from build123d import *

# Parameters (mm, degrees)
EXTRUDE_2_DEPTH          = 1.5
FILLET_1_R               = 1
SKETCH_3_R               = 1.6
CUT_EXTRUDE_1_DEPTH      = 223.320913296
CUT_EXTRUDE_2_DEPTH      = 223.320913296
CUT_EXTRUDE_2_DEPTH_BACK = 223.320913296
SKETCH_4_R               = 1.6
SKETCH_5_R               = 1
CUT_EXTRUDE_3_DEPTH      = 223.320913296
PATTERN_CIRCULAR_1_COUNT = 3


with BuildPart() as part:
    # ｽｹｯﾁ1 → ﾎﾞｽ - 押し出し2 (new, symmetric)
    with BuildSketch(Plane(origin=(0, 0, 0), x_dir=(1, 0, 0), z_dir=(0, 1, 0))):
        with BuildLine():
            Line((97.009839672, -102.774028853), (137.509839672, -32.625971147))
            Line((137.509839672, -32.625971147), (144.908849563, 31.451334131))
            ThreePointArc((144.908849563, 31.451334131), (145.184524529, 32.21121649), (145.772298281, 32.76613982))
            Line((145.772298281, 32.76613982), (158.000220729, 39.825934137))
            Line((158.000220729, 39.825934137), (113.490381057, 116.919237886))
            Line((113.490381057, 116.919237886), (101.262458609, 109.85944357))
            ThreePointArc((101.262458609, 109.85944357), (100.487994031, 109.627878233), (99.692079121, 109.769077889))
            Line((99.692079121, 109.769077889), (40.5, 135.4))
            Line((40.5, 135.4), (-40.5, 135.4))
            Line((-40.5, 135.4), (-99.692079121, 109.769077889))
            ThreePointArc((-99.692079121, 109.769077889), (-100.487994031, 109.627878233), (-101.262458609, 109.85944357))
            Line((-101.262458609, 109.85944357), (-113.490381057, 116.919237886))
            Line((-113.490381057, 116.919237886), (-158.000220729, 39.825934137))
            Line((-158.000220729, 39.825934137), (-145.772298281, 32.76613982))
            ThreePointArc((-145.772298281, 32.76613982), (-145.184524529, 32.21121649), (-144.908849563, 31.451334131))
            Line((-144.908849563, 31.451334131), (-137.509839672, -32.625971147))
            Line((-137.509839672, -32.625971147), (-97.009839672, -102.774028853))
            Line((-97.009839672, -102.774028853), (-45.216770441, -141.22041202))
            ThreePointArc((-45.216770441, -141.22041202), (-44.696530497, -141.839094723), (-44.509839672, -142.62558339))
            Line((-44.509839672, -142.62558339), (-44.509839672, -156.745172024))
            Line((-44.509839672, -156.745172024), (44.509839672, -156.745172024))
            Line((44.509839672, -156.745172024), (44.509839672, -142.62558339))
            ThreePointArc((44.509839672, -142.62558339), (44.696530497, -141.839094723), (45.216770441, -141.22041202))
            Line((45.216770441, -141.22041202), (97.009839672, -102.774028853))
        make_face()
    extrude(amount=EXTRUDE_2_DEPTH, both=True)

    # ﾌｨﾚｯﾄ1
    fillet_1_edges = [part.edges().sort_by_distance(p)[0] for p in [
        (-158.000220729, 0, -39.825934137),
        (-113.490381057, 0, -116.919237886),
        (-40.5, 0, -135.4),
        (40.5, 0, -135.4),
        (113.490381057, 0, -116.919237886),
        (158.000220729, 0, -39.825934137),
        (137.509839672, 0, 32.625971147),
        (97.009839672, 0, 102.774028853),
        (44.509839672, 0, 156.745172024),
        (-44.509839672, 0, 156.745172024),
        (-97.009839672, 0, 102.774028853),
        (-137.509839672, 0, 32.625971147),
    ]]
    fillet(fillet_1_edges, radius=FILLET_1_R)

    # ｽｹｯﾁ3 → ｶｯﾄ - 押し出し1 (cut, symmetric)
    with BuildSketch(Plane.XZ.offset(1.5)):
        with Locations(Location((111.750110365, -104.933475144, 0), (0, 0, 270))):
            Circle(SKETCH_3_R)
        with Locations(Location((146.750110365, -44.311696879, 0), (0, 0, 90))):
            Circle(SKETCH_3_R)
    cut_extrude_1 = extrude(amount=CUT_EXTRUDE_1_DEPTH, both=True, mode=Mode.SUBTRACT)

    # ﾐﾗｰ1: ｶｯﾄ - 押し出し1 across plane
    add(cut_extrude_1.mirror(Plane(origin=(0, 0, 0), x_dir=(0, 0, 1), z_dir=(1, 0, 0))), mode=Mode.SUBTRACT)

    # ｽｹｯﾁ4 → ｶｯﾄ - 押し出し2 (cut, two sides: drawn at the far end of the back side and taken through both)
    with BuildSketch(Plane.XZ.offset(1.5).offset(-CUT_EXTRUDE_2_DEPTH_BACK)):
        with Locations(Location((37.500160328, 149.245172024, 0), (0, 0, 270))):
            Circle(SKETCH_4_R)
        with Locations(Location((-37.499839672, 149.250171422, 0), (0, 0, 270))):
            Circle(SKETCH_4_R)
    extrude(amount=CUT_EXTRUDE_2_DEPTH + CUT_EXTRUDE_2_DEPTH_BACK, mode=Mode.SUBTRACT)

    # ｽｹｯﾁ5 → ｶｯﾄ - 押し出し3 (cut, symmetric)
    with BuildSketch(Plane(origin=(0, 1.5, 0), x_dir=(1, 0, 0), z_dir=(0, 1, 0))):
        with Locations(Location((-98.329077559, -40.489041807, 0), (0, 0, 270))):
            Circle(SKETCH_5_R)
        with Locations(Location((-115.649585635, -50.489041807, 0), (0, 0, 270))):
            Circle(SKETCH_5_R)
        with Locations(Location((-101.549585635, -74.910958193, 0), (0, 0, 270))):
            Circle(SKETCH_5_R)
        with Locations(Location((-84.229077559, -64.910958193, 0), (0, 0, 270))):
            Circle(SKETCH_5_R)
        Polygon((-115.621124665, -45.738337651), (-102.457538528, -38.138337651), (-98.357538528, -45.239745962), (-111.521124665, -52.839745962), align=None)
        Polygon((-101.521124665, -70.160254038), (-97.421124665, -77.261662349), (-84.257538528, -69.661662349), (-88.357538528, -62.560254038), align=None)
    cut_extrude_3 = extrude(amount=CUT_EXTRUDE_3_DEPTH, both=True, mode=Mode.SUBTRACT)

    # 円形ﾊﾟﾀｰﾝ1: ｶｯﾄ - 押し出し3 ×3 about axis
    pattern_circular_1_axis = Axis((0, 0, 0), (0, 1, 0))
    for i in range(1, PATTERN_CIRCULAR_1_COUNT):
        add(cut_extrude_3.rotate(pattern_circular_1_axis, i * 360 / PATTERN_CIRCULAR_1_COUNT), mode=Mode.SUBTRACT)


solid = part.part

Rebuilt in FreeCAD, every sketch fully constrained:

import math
import FreeCAD as App
import Part
import Sketcher
Q = App.Units.Quantity


def edges_at(feature, points):
    """Names of the edges that pass closest to the given points."""
    edges = feature.Shape.Edges
    near = lambda p: min(range(len(edges)), key=lambda i: edges[i].distToShape(Part.Vertex(*p))[0])
    return sorted({f"Edge{near(p) + 1}" for p in points})


def add_polygon(sketch, points):
    """Adds a closed chain of lines whose ends are joined by coincident constraints."""
    first, n = sketch.GeometryCount, len(points)
    for a, b in zip(points, points[1:] + points[:1]):
        sketch.addGeometry(Part.LineSegment(App.Vector(*a, 0), App.Vector(*b, 0)), False)
    for i in range(n):
        sketch.addConstraint(Sketcher.Constraint("Coincident", first + i, 2, first + (i + 1) % n, 1))

doc = App.newDocument("Part")
params = doc.addObject("Spreadsheet::Sheet", "Params")
for row, (alias, value) in enumerate([
    ("sketch1_width", "81 mm"),
    ("sketch1_radius", "1.75 mm"),
    ("sketch1_length", "81 mm"),
    ("pad1_length", "3 mm"),
    ("fillet_radius", "1 mm"),
    ("sketch2_diameter", "3.2 mm"),
    ("pocket1_length", "446.641827 mm"),
    ("sketch3_diameter", "3.2 mm"),
    ("sketch4_diameter", "2 mm"),
    ("sketch4_length", "15.2 mm"),
    ("sketch4_length2", "8.2 mm"),
    ("pocket3_length", "446.641827 mm"),
], start=1):
    params.set(f"A{row}", alias)
    params.set(f"B{row}", "=" + value)
    params.setAlias(f"B{row}", alias)

body = doc.addObject("PartDesign::Body", "Body")

# Sketch on XZ plane
sketch1 = body.newObject("Sketcher::SketchObject", "Sketch")
sketch1.AttachmentSupport = (doc.getObject("XZ_Plane"), [""])
sketch1.MapMode = "FlatFace"
sketch1.addGeometry([
    Part.LineSegment(App.Vector(97, 102.8, 0), App.Vector(137.5, 32.6, 0)),  # 0
    Part.LineSegment(App.Vector(137.5, 32.6, 0), App.Vector(144.9, -31.5, 0)),  # 1
    Part.ArcOfCircle(Part.Circle(App.Vector(146.6, -31.3, 0), App.Vector(0, 0, 1), 1.8), math.radians(-173), math.radians(-120)),  # 2
    Part.LineSegment(App.Vector(145.8, -32.8, 0), App.Vector(158, -39.8, 0)),  # 3
    Part.LineSegment(App.Vector(158, -39.8, 0), App.Vector(113.5, -116.9, 0)),  # 4
    Part.LineSegment(App.Vector(113.5, -116.9, 0), App.Vector(101.3, -109.9, 0)),  # 5
    Part.ArcOfCircle(Part.Circle(App.Vector(100.4, -111.4, 0), App.Vector(0, 0, 1), 1.7), math.radians(60), math.radians(113)),  # 6
    Part.LineSegment(App.Vector(99.7, -109.8, 0), App.Vector(40.5, -135.4, 0)),  # 7
    Part.LineSegment(App.Vector(40.5, -135.4, 0), App.Vector(-40.5, -135.4, 0)),  # 8
    Part.LineSegment(App.Vector(-40.5, -135.4, 0), App.Vector(-99.7, -109.8, 0)),  # 9
    Part.ArcOfCircle(Part.Circle(App.Vector(-100.4, -111.4, 0), App.Vector(0, 0, 1), 1.7), math.radians(67), math.radians(120)),  # 10
    Part.LineSegment(App.Vector(-101.3, -109.9, 0), App.Vector(-113.5, -116.9, 0)),  # 11
    Part.LineSegment(App.Vector(-113.5, -116.9, 0), App.Vector(-158, -39.8, 0)),  # 12
    Part.LineSegment(App.Vector(-158, -39.8, 0), App.Vector(-145.8, -32.8, 0)),  # 13
    Part.ArcOfCircle(Part.Circle(App.Vector(-146.6, -31.3, 0), App.Vector(0, 0, 1), 1.8), math.radians(-60), math.radians(-7)),  # 14
    Part.LineSegment(App.Vector(-144.9, -31.5, 0), App.Vector(-137.5, 32.6, 0)),  # 15
    Part.LineSegment(App.Vector(-137.5, 32.6, 0), App.Vector(-97, 102.8, 0)),  # 16
    Part.LineSegment(App.Vector(-97, 102.8, 0), App.Vector(-45.2, 141.2, 0)),  # 17
    Part.ArcOfCircle(Part.Circle(App.Vector(-46.3, 142.6, 0), App.Vector(0, 0, 1), 1.8), math.radians(-53), math.radians(0)),  # 18
    Part.LineSegment(App.Vector(-44.5, 142.6, 0), App.Vector(-44.5, 156.7, 0)),  # 19
    Part.LineSegment(App.Vector(-44.5, 156.7, 0), App.Vector(44.5, 156.7, 0)),  # 20
    Part.LineSegment(App.Vector(44.5, 156.7, 0), App.Vector(44.5, 142.6, 0)),  # 21
    Part.ArcOfCircle(Part.Circle(App.Vector(46.3, 142.6, 0), App.Vector(0, 0, 1), 1.8), math.radians(180), math.radians(233)),  # 22
    Part.LineSegment(App.Vector(45.2, 141.2, 0), App.Vector(97, 102.8, 0)),  # 23
], False)
sketch1.addConstraint([
    Sketcher.Constraint("Coincident", 0, 2, 1, 1),
    Sketcher.Constraint("Tangent", 1, 2, 2, 1),
    Sketcher.Constraint("Tangent", 2, 2, 3, 1),
    Sketcher.Constraint("Coincident", 3, 2, 4, 1),
    Sketcher.Constraint("Coincident", 4, 2, 5, 1),
    Sketcher.Constraint("Tangent", 5, 2, 6, 1),
    Sketcher.Constraint("Tangent", 6, 2, 7, 1),
    Sketcher.Constraint("Coincident", 7, 2, 8, 1),
    Sketcher.Constraint("Coincident", 8, 2, 9, 1),
    Sketcher.Constraint("Tangent", 9, 2, 10, 1),
    Sketcher.Constraint("Tangent", 10, 2, 11, 1),
    Sketcher.Constraint("Coincident", 11, 2, 12, 1),
    Sketcher.Constraint("Coincident", 12, 2, 13, 1),
    Sketcher.Constraint("Tangent", 13, 2, 14, 1),
    Sketcher.Constraint("Tangent", 14, 2, 15, 1),
    Sketcher.Constraint("Coincident", 15, 2, 16, 1),
    Sketcher.Constraint("Coincident", 16, 2, 17, 1),
    Sketcher.Constraint("Tangent", 17, 2, 18, 1),
    Sketcher.Constraint("Tangent", 18, 2, 19, 1),
    Sketcher.Constraint("Coincident", 19, 2, 20, 1),
    Sketcher.Constraint("Coincident", 20, 2, 21, 1),
    Sketcher.Constraint("Tangent", 21, 2, 22, 1),
    Sketcher.Constraint("Tangent", 22, 2, 23, 1),
    Sketcher.Constraint("Coincident", 23, 2, 0, 1),
    Sketcher.Constraint("Horizontal", 8),
    Sketcher.Constraint("Vertical", 19),
    Sketcher.Constraint("Horizontal", 20),
    Sketcher.Constraint("Vertical", 21),
    Sketcher.Constraint("Equal", 2, 6),
    Sketcher.Constraint("Equal", 6, 10),
    Sketcher.Constraint("Equal", 10, 14),
    Sketcher.Constraint("Equal", 14, 18),
    Sketcher.Constraint("Equal", 18, 22),
    Sketcher.Constraint("Symmetric", 6, 3, 10, 3, -2),
    Sketcher.Constraint("Symmetric", 2, 3, 14, 3, -2),
    Sketcher.Constraint("Symmetric", 18, 3, 22, 3, -2),
    Sketcher.Constraint("Symmetric", 4, 2, 11, 2, -2),
    Sketcher.Constraint("Symmetric", 3, 2, 12, 2, -2),
    Sketcher.Constraint("Symmetric", 0, 2, 15, 2, -2),
    Sketcher.Constraint("Symmetric", 16, 2, 23, 2, -2),
    Sketcher.Constraint("Perpendicular", 3, 4),
    Sketcher.Constraint("Perpendicular", 4, 5),
    Sketcher.Constraint("Perpendicular", 0, 11),
    Sketcher.Constraint("Horizontal", 6, 2, 9, 2),
    Sketcher.Constraint("Equal", 3, 5),
    Sketcher.Constraint("Equal", 1, 7),
    Sketcher.Constraint("Equal", 15, 17),
    Sketcher.Constraint("DistanceX", 8, 2, 8, 1, Q("81 mm")),
    Sketcher.Constraint("Angle", 0, Q("-60 deg")),
    Sketcher.Constraint("Radius", 2, Q("1.75 mm")),
    Sketcher.Constraint("Distance", 0, Q("81 mm")),
    Sketcher.Constraint("DistanceX", 15, 2, 18, 2, Q("93 mm")),
    Sketcher.Constraint("DistanceY", 7, 2, -1, 1, Q("135.4 mm")),
    Sketcher.Constraint("DistanceX", 20, 1, 20, 2, Q("89.019679 mm")),
    Sketcher.Constraint("DistanceY", 19, 1, 19, 2, Q("14.119589 mm")),
    Sketcher.Constraint("DistanceX", -1, 1, 2, 3, Q("146.647298 mm")),
    Sketcher.Constraint("DistanceX", 18, 3, 6, 3, Q("146.647298 mm")),
    Sketcher.Constraint("DistanceY", 3, 2, 1, 2, Q("8.3746 mm")),
    Sketcher.Constraint("DistanceY", 6, 3, -1, 1, Q("111.374988 mm")),
])
sketch1.setExpression("Constraints[47]", "Params.sketch1_width")
sketch1.setExpression("Constraints[49]", "Params.sketch1_radius")
sketch1.setExpression("Constraints[50]", "Params.sketch1_length")
pad1 = body.newObject("PartDesign::Pad", "Pad")
pad1.Profile = sketch1
pad1.setExpression("Length", "Params.pad1_length")
pad1.Midplane = True
doc.recompute()

fillet = body.newObject("PartDesign::Fillet", "Fillet")
fillet.Base = (pad1, edges_at(pad1, [
    (-158, 0, -39.826),
    (-113.49, 0, -116.919),
    (-40.5, 0, -135.4),
    (40.5, 0, -135.4),
    (113.49, 0, -116.919),
    (158, 0, -39.826),
    (137.51, 0, 32.626),
    (97.01, 0, 102.774),
    (44.51, 0, 156.745),
    (-44.51, 0, 156.745),
    (-97.01, 0, 102.774),
    (-137.51, 0, 32.626),
]))
fillet.setExpression("Radius", "Params.fillet_radius")

# Sketch on XZ plane
sketch2 = body.newObject("Sketcher::SketchObject", "Sketch001")
sketch2.AttachmentSupport = (doc.getObject("XZ_Plane"), [""])
sketch2.MapMode = "FlatFace"
sketch2.AttachmentOffset = App.Placement(App.Vector(0, 0, 1.5), App.Rotation())
sketch2.addGeometry([
    Part.Circle(App.Vector(111.8, -104.9, 0), App.Vector(0, 0, 1), 1.6),
    Part.Circle(App.Vector(146.8, -44.3, 0), App.Vector(0, 0, 1), 1.6),
], False)
sketch2.addConstraint([
    Sketcher.Constraint("Equal", 0, 1),
    Sketcher.Constraint("Diameter", 0, Q("3.2 mm")),
    Sketcher.Constraint("DistanceX", 0, 3, 1, 3, Q("35 mm")),
    Sketcher.Constraint("DistanceX", -1, 1, 0, 3, Q("111.75011 mm")),
    Sketcher.Constraint("DistanceY", 0, 3, 1, 3, Q("60.621778 mm")),
    Sketcher.Constraint("DistanceY", 0, 3, -1, 1, Q("104.933475 mm")),
])
sketch2.setExpression("Constraints[1]", "Params.sketch2_diameter")
pocket1 = body.newObject("PartDesign::Pocket", "Pocket")
pocket1.Profile = sketch2
pocket1.setExpression("Length", "Params.pocket1_length")
pocket1.Midplane = True
doc.recompute()

mirrored = body.newObject("PartDesign::Mirrored", "Mirrored")
mirrored.Originals = [pocket1]
mirrored.MirrorPlane = (doc.getObject("YZ_Plane"), [""])
body.Tip = mirrored

# Sketch on XZ plane
sketch3 = body.newObject("Sketcher::SketchObject", "Sketch002")
sketch3.AttachmentSupport = (doc.getObject("XZ_Plane"), [""])
sketch3.MapMode = "FlatFace"
sketch3.AttachmentOffset = App.Placement(App.Vector(0, 0, 1.5), App.Rotation())
sketch3.addGeometry([
    Part.Circle(App.Vector(37.5, 149.2, 0), App.Vector(0, 0, 1), 1.6),
    Part.Circle(App.Vector(-37.5, 149.3, 0), App.Vector(0, 0, 1), 1.6),
], False)
sketch3.addConstraint([
    Sketcher.Constraint("Equal", 0, 1),
    Sketcher.Constraint("Diameter", 0, Q("3.2 mm")),
    Sketcher.Constraint("DistanceX", 1, 3, 0, 3, Q("75 mm")),
    Sketcher.Constraint("DistanceY", 0, 3, 1, 3, Q("0.004999 mm")),
    Sketcher.Constraint("DistanceX", -1, 1, 0, 3, Q("37.50016 mm")),
    Sketcher.Constraint("DistanceY", -1, 1, 1, 3, Q("149.250171 mm")),
])
sketch3.setExpression("Constraints[1]", "Params.sketch3_diameter")
pocket2 = body.newObject("PartDesign::Pocket", "Pocket001")
pocket2.Profile = sketch3
pocket2.Type = "ThroughAll"
pocket2.Midplane = True

# Sketch on XZ plane
sketch4 = body.newObject("Sketcher::SketchObject", "Sketch003")
sketch4.AttachmentSupport = (doc.getObject("XZ_Plane"), [""])
sketch4.MapMode = "FlatFace"
sketch4.AttachmentOffset = App.Placement(App.Vector(0, 0, -1.5), App.Rotation())
sketch4.addGeometry(Part.Circle(App.Vector(-98.3, 40.5, 0), App.Vector(0, 0, 1), 1), False)  # 0
sketch4.addGeometry(Part.Circle(App.Vector(-115.6, 50.5, 0), App.Vector(0, 0, 1), 1), False)  # 1
sketch4.addGeometry(Part.Circle(App.Vector(-101.5, 74.9, 0), App.Vector(0, 0, 1), 1), False)  # 2
sketch4.addGeometry(Part.Circle(App.Vector(-84.2, 64.9, 0), App.Vector(0, 0, 1), 1), False)  # 3
add_polygon(sketch4, [(-102.5, 38.1), (-115.6, 45.7), (-111.5, 52.8), (-98.4, 45.2)])  # lines 4-7
add_polygon(sketch4, [(-101.5, 70.2), (-97.4, 77.3), (-84.3, 69.7), (-88.4, 62.6)])  # lines 8-11
sketch4.addConstraint([
    Sketcher.Constraint("Equal", 0, 1),
    Sketcher.Constraint("Equal", 1, 2),
    Sketcher.Constraint("Equal", 2, 3),
    Sketcher.Constraint("Perpendicular", 4, 5),
    Sketcher.Constraint("Perpendicular", 5, 6),
    Sketcher.Constraint("Perpendicular", 6, 7),
    Sketcher.Constraint("Parallel", 7, 8),
    Sketcher.Constraint("Perpendicular", 8, 9),
    Sketcher.Constraint("Perpendicular", 9, 10),
    Sketcher.Constraint("Perpendicular", 10, 11),
    Sketcher.Constraint("Equal", 7, 8),
    Sketcher.Constraint("Equal", 6, 9),
    Sketcher.Constraint("Diameter", 0, Q("2 mm")),
    Sketcher.Constraint("Angle", 4, Q("150 deg")),
    Sketcher.Constraint("DistanceY", 0, 3, 1, 3, Q("10 mm")),
    Sketcher.Constraint("DistanceY", 3, 3, 2, 3, Q("10 mm")),
    Sketcher.Constraint("DistanceX", 6, 2, 10, 2, Q("10 mm")),
    Sketcher.Constraint("Distance", 4, Q("15.2 mm")),
    Sketcher.Constraint("Distance", 5, Q("8.2 mm")),
    Sketcher.Constraint("DistanceX", 1, 3, 2, 3, Q("14.1 mm")),
    Sketcher.Constraint("DistanceX", 0, 3, 3, 3, Q("14.1 mm")),
    Sketcher.Constraint("DistanceY", -1, 1, 0, 3, Q("40.489042 mm")),
    Sketcher.Constraint("DistanceY", -1, 1, 2, 3, Q("74.910958 mm")),
    Sketcher.Constraint("DistanceX", 6, 2, -1, 1, Q("98.357539 mm")),
    Sketcher.Constraint("DistanceX", 1, 3, 0, 3, Q("17.320508 mm")),
    Sketcher.Constraint("DistanceX", 1, 3, 4, 2, Q("0.028461 mm")),
    Sketcher.Constraint("DistanceY", 4, 2, 2, 3, Q("29.172621 mm")),
    Sketcher.Constraint("DistanceY", 1, 3, 8, 2, Q("26.772621 mm")),
])
sketch4.setExpression("Constraints[20]", "Params.sketch4_diameter")
sketch4.setExpression("Constraints[25]", "Params.sketch4_length")
sketch4.setExpression("Constraints[26]", "Params.sketch4_length2")
pocket3 = body.newObject("PartDesign::Pocket", "Pocket002")
pocket3.Profile = sketch4
pocket3.setExpression("Length", "Params.pocket3_length")
pocket3.Midplane = True
doc.recompute()

polarpattern = body.newObject("PartDesign::PolarPattern", "PolarPattern")
polarpattern.Originals = [pocket3]
polarpattern.Axis = (doc.getObject("Y_Axis"), [""])
polarpattern.Angle = 360
polarpattern.Occurrences = 3
body.Tip = polarpattern

doc.recompute()
